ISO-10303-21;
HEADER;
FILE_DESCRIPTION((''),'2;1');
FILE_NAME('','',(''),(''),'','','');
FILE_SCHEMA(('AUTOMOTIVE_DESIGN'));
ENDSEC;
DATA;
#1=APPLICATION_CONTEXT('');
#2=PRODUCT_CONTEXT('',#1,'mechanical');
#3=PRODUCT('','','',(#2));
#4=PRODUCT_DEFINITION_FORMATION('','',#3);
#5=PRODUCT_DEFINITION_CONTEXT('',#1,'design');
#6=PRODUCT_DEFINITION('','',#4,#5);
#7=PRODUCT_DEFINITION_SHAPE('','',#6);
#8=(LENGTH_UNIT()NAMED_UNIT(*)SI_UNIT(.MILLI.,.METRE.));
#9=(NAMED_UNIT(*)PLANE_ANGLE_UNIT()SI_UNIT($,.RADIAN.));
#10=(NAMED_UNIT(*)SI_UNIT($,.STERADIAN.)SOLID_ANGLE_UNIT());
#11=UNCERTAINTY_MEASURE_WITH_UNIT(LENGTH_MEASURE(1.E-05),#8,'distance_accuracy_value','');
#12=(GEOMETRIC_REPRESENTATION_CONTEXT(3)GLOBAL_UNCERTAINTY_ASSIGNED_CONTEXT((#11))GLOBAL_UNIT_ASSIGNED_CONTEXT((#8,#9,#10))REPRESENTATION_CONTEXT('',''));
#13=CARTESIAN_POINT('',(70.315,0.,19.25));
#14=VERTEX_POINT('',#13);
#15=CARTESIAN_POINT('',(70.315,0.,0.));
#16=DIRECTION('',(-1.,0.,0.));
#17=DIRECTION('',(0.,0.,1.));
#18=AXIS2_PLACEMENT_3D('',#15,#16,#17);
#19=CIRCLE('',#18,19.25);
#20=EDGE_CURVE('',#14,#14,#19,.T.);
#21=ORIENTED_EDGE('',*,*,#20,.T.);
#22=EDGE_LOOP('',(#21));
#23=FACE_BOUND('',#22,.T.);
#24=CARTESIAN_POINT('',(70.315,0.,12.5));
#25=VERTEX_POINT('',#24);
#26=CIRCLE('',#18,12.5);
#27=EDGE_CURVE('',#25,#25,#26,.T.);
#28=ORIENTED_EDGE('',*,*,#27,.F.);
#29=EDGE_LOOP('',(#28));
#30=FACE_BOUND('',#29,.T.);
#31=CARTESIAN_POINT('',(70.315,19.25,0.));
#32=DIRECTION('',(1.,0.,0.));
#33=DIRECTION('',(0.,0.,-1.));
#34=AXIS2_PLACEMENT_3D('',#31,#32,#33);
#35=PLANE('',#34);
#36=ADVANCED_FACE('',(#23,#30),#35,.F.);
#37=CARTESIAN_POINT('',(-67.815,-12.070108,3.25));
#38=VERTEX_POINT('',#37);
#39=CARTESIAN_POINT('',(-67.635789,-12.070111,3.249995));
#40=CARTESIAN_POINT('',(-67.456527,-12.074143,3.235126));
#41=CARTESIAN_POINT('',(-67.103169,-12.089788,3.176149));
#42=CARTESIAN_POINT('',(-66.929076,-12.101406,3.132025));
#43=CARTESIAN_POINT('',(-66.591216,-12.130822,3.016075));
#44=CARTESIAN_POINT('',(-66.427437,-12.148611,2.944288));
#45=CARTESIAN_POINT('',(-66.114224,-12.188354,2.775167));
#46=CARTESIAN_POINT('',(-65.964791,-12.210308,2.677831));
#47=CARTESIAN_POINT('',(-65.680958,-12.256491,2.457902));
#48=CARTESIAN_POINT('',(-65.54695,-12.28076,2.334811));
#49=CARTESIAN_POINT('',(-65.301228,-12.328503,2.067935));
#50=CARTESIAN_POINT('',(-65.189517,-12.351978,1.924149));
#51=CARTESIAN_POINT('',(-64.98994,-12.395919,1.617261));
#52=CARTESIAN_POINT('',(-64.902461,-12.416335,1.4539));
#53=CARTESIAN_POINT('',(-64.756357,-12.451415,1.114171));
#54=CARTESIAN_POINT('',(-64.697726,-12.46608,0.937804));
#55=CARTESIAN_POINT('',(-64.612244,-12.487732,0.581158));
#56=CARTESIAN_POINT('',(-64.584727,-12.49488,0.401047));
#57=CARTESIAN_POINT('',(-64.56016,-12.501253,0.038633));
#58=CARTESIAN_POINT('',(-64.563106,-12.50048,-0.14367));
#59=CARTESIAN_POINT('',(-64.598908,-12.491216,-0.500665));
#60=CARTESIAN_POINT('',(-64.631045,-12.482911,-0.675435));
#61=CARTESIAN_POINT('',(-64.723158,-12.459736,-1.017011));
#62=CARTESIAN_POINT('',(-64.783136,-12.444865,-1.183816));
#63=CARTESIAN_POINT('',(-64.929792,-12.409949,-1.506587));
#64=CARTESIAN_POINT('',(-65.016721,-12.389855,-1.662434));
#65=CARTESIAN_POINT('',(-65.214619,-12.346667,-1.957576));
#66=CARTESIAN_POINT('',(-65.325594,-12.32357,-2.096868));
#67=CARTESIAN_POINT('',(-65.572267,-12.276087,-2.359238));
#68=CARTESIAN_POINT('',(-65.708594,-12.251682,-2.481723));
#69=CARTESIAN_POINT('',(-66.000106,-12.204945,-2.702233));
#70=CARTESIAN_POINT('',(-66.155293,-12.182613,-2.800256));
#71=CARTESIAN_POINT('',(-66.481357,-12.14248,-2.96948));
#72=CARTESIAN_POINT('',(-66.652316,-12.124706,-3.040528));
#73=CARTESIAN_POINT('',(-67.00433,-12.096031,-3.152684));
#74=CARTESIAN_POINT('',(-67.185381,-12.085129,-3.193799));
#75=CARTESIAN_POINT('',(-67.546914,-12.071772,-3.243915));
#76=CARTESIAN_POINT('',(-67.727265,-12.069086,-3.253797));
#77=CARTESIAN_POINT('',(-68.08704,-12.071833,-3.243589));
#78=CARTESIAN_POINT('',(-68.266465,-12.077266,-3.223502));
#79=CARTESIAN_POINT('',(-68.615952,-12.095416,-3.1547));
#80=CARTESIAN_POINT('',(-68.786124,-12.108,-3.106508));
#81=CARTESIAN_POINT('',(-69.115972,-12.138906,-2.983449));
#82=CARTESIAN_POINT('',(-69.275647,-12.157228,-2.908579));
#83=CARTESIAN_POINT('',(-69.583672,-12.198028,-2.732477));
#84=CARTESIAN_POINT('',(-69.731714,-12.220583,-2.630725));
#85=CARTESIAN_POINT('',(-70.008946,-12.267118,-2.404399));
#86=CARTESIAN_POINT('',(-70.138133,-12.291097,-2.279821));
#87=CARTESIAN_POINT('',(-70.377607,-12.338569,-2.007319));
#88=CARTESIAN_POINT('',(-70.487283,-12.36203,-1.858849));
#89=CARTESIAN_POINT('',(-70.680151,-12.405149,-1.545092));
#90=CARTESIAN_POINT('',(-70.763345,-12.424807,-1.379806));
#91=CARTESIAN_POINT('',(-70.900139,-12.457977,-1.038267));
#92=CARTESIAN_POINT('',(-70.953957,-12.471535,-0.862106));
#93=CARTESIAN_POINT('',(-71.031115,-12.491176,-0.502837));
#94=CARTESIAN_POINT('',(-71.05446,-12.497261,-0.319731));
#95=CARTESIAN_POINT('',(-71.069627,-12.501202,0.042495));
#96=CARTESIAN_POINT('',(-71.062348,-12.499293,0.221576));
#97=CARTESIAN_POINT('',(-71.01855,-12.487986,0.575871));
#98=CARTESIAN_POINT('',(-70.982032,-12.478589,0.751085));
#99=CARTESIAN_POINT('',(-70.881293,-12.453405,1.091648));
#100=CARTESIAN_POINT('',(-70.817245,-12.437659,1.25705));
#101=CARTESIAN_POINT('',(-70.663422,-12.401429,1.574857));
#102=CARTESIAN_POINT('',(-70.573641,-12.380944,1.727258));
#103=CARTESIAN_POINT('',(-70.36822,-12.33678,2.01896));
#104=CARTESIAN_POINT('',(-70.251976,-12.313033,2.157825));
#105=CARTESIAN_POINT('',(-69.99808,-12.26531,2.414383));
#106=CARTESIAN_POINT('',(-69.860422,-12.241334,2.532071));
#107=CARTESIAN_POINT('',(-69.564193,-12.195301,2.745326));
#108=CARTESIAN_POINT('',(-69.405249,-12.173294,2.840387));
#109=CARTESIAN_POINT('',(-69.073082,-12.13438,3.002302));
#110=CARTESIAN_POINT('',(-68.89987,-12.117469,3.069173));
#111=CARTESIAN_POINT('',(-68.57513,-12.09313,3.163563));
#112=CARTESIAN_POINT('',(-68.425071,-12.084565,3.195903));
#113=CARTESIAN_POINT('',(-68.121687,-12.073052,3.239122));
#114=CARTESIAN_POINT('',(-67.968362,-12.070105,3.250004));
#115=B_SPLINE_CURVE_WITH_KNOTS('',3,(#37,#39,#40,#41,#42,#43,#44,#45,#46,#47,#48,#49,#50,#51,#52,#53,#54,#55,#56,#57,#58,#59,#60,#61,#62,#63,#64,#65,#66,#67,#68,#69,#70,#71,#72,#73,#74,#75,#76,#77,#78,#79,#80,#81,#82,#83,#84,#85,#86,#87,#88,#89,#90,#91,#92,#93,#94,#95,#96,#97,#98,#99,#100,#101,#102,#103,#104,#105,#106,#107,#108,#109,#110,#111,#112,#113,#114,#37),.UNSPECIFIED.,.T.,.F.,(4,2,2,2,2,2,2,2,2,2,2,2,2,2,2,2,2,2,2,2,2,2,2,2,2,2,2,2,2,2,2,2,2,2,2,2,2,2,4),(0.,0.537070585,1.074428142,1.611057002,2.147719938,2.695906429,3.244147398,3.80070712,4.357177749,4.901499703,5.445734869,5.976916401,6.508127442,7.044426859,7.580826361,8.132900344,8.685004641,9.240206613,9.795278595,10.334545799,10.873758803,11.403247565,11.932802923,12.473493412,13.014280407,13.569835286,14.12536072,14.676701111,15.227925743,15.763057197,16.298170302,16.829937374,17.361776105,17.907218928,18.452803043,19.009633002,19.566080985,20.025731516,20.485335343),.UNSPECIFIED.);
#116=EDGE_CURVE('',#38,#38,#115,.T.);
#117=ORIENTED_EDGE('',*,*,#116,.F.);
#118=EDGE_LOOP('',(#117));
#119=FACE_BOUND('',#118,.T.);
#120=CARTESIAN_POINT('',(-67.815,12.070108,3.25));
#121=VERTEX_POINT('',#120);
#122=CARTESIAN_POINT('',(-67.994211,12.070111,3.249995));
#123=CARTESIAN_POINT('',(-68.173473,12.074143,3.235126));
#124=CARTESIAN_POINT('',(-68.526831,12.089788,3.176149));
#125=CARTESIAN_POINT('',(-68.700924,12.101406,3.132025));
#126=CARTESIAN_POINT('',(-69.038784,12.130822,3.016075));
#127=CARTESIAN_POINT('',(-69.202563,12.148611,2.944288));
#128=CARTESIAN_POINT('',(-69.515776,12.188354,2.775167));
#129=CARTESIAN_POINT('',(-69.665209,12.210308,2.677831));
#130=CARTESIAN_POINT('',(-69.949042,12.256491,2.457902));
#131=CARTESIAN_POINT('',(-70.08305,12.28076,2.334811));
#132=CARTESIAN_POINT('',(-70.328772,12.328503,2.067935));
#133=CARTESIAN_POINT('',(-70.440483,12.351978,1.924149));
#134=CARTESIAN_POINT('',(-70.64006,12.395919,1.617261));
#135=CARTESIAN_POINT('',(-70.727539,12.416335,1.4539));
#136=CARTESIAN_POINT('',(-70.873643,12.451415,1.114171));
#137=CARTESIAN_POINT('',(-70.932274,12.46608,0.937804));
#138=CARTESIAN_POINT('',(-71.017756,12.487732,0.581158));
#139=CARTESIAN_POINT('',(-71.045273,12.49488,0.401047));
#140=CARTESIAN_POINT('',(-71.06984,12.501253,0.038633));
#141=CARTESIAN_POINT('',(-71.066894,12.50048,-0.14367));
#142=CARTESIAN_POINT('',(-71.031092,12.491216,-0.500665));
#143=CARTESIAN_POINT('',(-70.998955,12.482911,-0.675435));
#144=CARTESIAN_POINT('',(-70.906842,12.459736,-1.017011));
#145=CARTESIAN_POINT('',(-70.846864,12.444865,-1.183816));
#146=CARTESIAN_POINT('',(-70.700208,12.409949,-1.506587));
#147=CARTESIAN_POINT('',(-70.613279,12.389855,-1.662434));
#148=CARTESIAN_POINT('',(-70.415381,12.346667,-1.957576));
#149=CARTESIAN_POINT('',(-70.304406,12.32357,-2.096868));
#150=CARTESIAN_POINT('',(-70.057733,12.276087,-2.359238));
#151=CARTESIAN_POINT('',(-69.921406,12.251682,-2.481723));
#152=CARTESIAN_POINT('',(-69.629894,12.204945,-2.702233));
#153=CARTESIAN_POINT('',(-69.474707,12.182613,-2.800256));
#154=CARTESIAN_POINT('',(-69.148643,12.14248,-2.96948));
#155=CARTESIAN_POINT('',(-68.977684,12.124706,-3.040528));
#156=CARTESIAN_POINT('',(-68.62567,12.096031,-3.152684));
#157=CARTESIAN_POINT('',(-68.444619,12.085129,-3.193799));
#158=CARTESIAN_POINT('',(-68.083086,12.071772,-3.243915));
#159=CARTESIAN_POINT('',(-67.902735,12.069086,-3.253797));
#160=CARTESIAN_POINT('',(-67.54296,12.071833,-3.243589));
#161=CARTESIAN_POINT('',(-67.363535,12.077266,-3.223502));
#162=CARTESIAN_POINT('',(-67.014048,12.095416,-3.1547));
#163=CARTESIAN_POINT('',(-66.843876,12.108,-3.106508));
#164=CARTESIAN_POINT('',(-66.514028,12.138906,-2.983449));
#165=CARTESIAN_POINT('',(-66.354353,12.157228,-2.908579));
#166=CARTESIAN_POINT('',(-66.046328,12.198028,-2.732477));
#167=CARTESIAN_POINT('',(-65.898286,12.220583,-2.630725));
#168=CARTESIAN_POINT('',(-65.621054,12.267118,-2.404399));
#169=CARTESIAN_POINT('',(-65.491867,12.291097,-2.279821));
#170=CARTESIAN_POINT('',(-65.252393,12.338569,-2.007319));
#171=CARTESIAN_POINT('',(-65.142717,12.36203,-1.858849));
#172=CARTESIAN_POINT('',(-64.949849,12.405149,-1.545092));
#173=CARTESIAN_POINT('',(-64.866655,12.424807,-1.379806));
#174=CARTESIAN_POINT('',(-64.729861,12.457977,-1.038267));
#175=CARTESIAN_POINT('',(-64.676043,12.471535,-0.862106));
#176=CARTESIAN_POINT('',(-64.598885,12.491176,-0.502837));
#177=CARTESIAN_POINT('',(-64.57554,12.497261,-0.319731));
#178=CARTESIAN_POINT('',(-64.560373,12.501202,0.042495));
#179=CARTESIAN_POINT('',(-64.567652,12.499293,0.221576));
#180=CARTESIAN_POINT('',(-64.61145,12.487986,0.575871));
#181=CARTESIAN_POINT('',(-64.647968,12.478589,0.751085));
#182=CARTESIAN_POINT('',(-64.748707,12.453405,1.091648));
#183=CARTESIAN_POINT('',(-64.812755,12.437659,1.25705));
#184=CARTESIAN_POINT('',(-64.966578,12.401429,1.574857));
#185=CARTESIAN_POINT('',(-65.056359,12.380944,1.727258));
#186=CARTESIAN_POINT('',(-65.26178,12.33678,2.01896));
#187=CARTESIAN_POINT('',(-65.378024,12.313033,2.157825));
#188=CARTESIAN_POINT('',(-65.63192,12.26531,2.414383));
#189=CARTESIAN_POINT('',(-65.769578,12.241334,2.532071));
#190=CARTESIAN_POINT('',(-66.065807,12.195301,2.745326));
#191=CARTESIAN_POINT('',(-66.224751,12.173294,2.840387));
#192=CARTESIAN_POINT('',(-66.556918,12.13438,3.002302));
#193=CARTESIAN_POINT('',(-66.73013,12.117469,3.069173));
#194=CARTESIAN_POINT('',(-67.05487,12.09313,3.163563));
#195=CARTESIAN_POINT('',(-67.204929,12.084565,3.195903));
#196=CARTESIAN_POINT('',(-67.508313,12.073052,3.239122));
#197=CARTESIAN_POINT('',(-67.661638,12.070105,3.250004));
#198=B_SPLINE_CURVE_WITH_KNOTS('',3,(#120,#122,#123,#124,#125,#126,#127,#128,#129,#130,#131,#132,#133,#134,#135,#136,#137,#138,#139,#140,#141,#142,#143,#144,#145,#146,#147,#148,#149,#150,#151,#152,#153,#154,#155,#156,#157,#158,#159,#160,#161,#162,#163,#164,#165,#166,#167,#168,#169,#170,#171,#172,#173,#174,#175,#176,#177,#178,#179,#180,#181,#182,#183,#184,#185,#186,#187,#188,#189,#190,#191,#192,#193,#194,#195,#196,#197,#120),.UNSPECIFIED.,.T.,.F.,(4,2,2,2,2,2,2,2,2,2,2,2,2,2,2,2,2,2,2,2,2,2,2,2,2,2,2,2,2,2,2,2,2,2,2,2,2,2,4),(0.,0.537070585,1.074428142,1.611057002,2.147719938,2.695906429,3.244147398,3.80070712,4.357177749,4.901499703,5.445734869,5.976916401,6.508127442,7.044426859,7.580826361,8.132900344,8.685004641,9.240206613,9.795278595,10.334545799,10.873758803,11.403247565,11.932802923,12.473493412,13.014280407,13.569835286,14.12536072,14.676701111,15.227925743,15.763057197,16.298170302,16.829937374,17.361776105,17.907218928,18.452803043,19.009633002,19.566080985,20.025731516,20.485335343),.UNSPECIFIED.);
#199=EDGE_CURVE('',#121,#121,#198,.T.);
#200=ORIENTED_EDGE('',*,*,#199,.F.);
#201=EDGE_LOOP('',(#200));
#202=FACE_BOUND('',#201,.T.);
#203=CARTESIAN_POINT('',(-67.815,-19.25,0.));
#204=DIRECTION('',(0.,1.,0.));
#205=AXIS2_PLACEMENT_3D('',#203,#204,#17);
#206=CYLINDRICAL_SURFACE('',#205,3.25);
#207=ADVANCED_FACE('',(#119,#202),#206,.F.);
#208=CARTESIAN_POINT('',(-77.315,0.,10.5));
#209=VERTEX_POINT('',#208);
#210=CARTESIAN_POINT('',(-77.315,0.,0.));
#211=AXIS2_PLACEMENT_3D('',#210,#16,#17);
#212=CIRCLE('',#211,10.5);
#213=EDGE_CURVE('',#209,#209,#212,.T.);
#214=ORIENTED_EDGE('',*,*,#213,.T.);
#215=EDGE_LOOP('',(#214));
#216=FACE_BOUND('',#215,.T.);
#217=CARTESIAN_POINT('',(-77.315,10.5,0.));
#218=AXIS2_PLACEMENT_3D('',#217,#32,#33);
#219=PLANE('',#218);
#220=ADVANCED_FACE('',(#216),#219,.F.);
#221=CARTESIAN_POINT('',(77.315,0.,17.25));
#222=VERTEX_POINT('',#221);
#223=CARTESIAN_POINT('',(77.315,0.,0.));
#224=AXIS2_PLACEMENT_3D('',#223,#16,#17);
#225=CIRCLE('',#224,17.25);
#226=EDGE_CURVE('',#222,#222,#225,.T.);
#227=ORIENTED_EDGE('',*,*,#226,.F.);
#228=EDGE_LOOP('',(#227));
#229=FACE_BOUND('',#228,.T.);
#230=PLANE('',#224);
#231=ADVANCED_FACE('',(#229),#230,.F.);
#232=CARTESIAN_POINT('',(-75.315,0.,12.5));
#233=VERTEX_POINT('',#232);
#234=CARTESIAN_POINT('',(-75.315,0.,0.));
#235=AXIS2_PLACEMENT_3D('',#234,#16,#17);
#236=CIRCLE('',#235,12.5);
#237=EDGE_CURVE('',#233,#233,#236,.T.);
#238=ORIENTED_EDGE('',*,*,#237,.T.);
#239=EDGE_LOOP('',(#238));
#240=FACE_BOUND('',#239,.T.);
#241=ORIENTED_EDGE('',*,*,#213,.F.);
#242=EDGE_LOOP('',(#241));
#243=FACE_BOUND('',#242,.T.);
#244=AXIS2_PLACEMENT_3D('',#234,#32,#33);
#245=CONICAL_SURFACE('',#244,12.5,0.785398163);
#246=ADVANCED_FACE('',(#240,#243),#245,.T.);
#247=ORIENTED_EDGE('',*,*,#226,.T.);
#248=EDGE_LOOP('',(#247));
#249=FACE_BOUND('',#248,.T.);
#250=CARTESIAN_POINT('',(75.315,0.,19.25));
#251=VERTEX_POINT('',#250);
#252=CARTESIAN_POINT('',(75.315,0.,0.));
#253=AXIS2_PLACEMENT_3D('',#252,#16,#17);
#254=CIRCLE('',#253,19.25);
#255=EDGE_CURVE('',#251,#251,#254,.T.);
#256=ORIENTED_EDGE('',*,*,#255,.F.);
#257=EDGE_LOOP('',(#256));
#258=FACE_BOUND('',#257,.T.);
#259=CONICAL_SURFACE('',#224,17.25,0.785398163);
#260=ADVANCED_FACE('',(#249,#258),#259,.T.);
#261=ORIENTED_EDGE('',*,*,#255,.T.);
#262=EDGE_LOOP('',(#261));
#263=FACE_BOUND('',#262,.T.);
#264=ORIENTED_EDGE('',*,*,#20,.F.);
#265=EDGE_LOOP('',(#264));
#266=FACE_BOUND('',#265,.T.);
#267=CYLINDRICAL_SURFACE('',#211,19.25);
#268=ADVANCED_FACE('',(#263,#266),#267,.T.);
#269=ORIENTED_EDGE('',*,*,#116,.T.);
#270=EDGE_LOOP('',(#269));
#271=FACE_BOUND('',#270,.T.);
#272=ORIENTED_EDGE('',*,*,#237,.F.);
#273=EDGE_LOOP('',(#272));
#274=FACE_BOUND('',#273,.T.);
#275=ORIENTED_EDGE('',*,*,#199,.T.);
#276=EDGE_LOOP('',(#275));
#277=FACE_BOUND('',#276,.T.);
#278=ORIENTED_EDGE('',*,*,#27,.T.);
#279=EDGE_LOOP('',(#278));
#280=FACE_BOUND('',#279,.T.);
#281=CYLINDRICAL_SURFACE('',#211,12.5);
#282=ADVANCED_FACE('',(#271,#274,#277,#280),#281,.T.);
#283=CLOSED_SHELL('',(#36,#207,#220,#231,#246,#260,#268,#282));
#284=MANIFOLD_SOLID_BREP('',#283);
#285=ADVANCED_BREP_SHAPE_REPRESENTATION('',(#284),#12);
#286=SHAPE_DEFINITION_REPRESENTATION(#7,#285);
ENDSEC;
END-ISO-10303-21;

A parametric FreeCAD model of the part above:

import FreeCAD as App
import Part
import Sketcher
from FreeCAD import Vector
Q = App.Units.Quantity

doc = App.newDocument("Part")
params = doc.addObject("Spreadsheet::Sheet", "Params")
for row, (alias, value) in enumerate([
    ("sketch1_width", "5 mm"),
    ("sketch1_height", "10.5 mm"),
    ("sketch1_width2", "145.63 mm"),
    ("sketch1_height2", "17.25 mm"),
    ("revolution_angle", "360 deg"),
    ("sketch2_diameter", "6.5 mm"),
], start=1):
    params.set(f"A{row}", alias)
    params.set(f"B{row}", "=" + value)
    params.setAlias(f"B{row}", alias)

body = doc.addObject("PartDesign::Body", "Body")

sketch1 = body.newObject("Sketcher::SketchObject", "Sketch")
sketch1.AttachmentSupport = (doc.getObject("XY_Plane"), [""])
sketch1.MapMode = "FlatFace"
sketch1.addGeometry([
    Part.LineSegment(Vector(77.3, 0, 0), Vector(77.3, 17.2, 0)),
    Part.LineSegment(Vector(77.3, 17.2, 0), Vector(75.3, 19.2, 0)),
    Part.LineSegment(Vector(75.3, 19.2, 0), Vector(70.3, 19.2, 0)),
    Part.LineSegment(Vector(70.3, 19.2, 0), Vector(70.3, 12.5, 0)),
    Part.LineSegment(Vector(70.3, 12.5, 0), Vector(-75.3, 12.5, 0)),
    Part.LineSegment(Vector(-75.3, 12.5, 0), Vector(-77.3, 10.5, 0)),
    Part.LineSegment(Vector(-77.3, 10.5, 0), Vector(-77.3, 0, 0)),
    Part.LineSegment(Vector(-77.3, 0, 0), Vector(77.3, 0, 0)),
], False)
sketch1.addConstraint([
    Sketcher.Constraint("Coincident", 0, 2, 1, 1),
    Sketcher.Constraint("Coincident", 1, 2, 2, 1),
    Sketcher.Constraint("Coincident", 2, 2, 3, 1),
    Sketcher.Constraint("Coincident", 3, 2, 4, 1),
    Sketcher.Constraint("Coincident", 4, 2, 5, 1),
    Sketcher.Constraint("Coincident", 5, 2, 6, 1),
    Sketcher.Constraint("Coincident", 6, 2, 7, 1),
    Sketcher.Constraint("Coincident", 7, 2, 0, 1),
    Sketcher.Constraint("Vertical", 0),
    Sketcher.Constraint("Horizontal", 2),
    Sketcher.Constraint("Vertical", 3),
    Sketcher.Constraint("Horizontal", 4),
    Sketcher.Constraint("Vertical", 6),
    Sketcher.Constraint("Horizontal", 7),
    Sketcher.Constraint("Symmetric", 6, 2, 7, 2, -1, 1),
    Sketcher.Constraint("Perpendicular", 1, 5),
    Sketcher.Constraint("Equal", 1, 5),
    Sketcher.Constraint("DistanceX", 2, 2, 2, 1, Q("5 mm")),
    Sketcher.Constraint("Angle", 1, Q("135 deg")),
    Sketcher.Constraint("DistanceY", 6, 2, 6, 1, Q("10.5 mm")),
    Sketcher.Constraint("DistanceX", 1, 2, 0, 2, Q("2 mm")),
    Sketcher.Constraint("DistanceX", 4, 2, 4, 1, Q("145.63 mm")),
    Sketcher.Constraint("DistanceY", 0, 1, 0, 2, Q("17.25 mm")),
])
sketch1.setExpression("Constraints[17]", "Params.sketch1_width")
sketch1.setExpression("Constraints[19]", "Params.sketch1_height")
sketch1.setExpression("Constraints[21]", "Params.sketch1_width2")
sketch1.setExpression("Constraints[22]", "Params.sketch1_height2")
revolution = body.newObject("PartDesign::Revolution", "Revolution")
revolution.Profile = sketch1
revolution.ReferenceAxis = (sketch1, ["H_Axis"])
revolution.setExpression("Angle", "Params.revolution_angle")

sketch2 = body.newObject("Sketcher::SketchObject", "Sketch001")
sketch2.AttachmentSupport = (doc.getObject("XZ_Plane"), [""])
sketch2.MapMode = "FlatFace"
sketch2.addGeometry(Part.Circle(Vector(-67.8, 0, 0), Vector(0, 0, 1), 3.2), False)
sketch2.addConstraint([
    Sketcher.Constraint("PointOnObject", 0, 3, -1),
    Sketcher.Constraint("Diameter", 0, Q("6.5 mm")),
    Sketcher.Constraint("DistanceX", 0, 3, -1, 1, Q("67.815 mm")),
])
sketch2.setExpression("Constraints[1]", "Params.sketch2_diameter")
pocket1 = body.newObject("PartDesign::Pocket", "Pocket")
pocket1.Profile = sketch2
pocket1.Type = "ThroughAll"
pocket1.Midplane = True

doc.recompute()
